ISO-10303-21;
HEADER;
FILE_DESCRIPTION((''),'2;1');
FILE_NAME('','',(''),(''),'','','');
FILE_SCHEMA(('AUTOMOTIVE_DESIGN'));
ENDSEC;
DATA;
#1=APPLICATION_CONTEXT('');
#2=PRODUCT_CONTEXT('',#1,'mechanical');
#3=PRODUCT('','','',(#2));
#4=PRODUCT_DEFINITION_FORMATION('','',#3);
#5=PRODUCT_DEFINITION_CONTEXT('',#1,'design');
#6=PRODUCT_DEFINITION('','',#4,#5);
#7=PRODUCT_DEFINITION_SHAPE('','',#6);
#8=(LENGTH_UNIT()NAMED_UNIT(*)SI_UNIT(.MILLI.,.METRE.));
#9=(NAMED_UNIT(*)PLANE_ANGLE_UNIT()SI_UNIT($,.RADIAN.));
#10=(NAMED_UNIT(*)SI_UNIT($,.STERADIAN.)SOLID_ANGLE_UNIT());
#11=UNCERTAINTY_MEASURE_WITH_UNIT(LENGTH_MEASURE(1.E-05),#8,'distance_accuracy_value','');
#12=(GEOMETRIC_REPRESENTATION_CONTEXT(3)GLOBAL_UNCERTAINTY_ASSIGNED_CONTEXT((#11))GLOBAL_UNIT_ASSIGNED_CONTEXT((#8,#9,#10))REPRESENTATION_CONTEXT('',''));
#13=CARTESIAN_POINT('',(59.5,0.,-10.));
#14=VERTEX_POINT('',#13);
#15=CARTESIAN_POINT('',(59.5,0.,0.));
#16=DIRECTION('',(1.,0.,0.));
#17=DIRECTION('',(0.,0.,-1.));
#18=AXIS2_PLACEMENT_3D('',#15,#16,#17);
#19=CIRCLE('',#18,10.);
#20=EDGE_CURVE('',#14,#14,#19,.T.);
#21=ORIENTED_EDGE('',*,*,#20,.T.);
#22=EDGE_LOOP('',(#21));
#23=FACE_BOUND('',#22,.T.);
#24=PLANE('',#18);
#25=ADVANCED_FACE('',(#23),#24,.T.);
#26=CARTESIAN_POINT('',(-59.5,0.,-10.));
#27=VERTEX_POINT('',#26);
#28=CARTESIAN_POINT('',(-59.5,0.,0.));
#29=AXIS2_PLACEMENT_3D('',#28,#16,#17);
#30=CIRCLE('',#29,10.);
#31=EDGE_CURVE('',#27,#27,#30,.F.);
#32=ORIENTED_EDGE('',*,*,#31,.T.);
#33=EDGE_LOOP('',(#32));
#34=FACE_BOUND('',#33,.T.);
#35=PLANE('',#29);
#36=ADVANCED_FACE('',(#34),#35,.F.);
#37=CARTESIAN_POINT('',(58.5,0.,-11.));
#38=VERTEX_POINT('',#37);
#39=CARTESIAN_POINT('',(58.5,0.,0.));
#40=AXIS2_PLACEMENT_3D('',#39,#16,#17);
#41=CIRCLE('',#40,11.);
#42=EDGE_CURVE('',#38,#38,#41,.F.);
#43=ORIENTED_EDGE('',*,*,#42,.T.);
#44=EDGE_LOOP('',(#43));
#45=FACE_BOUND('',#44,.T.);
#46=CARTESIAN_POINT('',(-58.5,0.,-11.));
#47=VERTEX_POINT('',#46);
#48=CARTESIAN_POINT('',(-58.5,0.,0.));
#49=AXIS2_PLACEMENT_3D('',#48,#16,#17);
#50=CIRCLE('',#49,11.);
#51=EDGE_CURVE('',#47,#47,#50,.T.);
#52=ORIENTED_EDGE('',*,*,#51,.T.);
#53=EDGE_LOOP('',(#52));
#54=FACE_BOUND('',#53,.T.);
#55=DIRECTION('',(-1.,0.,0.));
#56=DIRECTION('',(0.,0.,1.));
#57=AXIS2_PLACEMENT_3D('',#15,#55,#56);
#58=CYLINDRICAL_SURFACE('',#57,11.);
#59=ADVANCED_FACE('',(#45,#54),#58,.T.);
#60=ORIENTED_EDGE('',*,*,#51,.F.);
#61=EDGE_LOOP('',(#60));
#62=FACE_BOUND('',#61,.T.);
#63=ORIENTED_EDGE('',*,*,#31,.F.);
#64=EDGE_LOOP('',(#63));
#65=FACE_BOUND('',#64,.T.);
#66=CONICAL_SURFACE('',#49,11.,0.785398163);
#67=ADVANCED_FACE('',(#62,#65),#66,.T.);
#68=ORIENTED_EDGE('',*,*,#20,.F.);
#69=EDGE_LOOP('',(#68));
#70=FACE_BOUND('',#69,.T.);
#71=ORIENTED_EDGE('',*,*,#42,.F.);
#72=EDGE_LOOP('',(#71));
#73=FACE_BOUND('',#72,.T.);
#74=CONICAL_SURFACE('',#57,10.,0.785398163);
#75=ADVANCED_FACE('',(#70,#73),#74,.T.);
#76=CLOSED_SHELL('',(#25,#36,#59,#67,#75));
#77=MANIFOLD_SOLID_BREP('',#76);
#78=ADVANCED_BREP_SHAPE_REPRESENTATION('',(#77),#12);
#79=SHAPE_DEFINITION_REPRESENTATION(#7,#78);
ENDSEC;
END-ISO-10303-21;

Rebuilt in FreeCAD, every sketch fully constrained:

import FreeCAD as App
import Part
import Sketcher
from FreeCAD import Vector


def edges_at(feature, points):
    """Names of the edges that pass closest to the given points."""
    edges = feature.Shape.Edges
    near = lambda p: min(range(len(edges)), key=lambda i: edges[i].distToShape(Part.Vertex(*p))[0])
    return sorted({f"Edge{near(p) + 1}" for p in points})

doc = App.newDocument("Part")
body = doc.addObject("PartDesign::Body", "Body")

sketch1 = body.newObject("Sketcher::SketchObject", "Sketch")
sketch1.AttachmentSupport = (doc.getObject("YZ_Plane"), [""])
sketch1.MapMode = "FlatFace"
sketch1.addGeometry(Part.Circle(Vector(0, 0, 0), Vector(0, 0, 1), 11), False)
sketch1.addConstraint(Sketcher.Constraint("Coincident", 0, 3, -1, 1))
sketch1.addConstraint(Sketcher.Constraint("Diameter", 0, 22.0))
pad1 = body.newObject("PartDesign::Pad", "Pad")
pad1.Profile = sketch1
pad1.Length = 119
pad1.Midplane = True
doc.recompute()

chamfer = body.newObject("PartDesign::Chamfer", "Chamfer")
chamfer.Base = (pad1, edges_at(pad1, [(-59.5, 0, 11), (59.5, 0, 11)]))
chamfer.Size = 1

doc.recompute()
